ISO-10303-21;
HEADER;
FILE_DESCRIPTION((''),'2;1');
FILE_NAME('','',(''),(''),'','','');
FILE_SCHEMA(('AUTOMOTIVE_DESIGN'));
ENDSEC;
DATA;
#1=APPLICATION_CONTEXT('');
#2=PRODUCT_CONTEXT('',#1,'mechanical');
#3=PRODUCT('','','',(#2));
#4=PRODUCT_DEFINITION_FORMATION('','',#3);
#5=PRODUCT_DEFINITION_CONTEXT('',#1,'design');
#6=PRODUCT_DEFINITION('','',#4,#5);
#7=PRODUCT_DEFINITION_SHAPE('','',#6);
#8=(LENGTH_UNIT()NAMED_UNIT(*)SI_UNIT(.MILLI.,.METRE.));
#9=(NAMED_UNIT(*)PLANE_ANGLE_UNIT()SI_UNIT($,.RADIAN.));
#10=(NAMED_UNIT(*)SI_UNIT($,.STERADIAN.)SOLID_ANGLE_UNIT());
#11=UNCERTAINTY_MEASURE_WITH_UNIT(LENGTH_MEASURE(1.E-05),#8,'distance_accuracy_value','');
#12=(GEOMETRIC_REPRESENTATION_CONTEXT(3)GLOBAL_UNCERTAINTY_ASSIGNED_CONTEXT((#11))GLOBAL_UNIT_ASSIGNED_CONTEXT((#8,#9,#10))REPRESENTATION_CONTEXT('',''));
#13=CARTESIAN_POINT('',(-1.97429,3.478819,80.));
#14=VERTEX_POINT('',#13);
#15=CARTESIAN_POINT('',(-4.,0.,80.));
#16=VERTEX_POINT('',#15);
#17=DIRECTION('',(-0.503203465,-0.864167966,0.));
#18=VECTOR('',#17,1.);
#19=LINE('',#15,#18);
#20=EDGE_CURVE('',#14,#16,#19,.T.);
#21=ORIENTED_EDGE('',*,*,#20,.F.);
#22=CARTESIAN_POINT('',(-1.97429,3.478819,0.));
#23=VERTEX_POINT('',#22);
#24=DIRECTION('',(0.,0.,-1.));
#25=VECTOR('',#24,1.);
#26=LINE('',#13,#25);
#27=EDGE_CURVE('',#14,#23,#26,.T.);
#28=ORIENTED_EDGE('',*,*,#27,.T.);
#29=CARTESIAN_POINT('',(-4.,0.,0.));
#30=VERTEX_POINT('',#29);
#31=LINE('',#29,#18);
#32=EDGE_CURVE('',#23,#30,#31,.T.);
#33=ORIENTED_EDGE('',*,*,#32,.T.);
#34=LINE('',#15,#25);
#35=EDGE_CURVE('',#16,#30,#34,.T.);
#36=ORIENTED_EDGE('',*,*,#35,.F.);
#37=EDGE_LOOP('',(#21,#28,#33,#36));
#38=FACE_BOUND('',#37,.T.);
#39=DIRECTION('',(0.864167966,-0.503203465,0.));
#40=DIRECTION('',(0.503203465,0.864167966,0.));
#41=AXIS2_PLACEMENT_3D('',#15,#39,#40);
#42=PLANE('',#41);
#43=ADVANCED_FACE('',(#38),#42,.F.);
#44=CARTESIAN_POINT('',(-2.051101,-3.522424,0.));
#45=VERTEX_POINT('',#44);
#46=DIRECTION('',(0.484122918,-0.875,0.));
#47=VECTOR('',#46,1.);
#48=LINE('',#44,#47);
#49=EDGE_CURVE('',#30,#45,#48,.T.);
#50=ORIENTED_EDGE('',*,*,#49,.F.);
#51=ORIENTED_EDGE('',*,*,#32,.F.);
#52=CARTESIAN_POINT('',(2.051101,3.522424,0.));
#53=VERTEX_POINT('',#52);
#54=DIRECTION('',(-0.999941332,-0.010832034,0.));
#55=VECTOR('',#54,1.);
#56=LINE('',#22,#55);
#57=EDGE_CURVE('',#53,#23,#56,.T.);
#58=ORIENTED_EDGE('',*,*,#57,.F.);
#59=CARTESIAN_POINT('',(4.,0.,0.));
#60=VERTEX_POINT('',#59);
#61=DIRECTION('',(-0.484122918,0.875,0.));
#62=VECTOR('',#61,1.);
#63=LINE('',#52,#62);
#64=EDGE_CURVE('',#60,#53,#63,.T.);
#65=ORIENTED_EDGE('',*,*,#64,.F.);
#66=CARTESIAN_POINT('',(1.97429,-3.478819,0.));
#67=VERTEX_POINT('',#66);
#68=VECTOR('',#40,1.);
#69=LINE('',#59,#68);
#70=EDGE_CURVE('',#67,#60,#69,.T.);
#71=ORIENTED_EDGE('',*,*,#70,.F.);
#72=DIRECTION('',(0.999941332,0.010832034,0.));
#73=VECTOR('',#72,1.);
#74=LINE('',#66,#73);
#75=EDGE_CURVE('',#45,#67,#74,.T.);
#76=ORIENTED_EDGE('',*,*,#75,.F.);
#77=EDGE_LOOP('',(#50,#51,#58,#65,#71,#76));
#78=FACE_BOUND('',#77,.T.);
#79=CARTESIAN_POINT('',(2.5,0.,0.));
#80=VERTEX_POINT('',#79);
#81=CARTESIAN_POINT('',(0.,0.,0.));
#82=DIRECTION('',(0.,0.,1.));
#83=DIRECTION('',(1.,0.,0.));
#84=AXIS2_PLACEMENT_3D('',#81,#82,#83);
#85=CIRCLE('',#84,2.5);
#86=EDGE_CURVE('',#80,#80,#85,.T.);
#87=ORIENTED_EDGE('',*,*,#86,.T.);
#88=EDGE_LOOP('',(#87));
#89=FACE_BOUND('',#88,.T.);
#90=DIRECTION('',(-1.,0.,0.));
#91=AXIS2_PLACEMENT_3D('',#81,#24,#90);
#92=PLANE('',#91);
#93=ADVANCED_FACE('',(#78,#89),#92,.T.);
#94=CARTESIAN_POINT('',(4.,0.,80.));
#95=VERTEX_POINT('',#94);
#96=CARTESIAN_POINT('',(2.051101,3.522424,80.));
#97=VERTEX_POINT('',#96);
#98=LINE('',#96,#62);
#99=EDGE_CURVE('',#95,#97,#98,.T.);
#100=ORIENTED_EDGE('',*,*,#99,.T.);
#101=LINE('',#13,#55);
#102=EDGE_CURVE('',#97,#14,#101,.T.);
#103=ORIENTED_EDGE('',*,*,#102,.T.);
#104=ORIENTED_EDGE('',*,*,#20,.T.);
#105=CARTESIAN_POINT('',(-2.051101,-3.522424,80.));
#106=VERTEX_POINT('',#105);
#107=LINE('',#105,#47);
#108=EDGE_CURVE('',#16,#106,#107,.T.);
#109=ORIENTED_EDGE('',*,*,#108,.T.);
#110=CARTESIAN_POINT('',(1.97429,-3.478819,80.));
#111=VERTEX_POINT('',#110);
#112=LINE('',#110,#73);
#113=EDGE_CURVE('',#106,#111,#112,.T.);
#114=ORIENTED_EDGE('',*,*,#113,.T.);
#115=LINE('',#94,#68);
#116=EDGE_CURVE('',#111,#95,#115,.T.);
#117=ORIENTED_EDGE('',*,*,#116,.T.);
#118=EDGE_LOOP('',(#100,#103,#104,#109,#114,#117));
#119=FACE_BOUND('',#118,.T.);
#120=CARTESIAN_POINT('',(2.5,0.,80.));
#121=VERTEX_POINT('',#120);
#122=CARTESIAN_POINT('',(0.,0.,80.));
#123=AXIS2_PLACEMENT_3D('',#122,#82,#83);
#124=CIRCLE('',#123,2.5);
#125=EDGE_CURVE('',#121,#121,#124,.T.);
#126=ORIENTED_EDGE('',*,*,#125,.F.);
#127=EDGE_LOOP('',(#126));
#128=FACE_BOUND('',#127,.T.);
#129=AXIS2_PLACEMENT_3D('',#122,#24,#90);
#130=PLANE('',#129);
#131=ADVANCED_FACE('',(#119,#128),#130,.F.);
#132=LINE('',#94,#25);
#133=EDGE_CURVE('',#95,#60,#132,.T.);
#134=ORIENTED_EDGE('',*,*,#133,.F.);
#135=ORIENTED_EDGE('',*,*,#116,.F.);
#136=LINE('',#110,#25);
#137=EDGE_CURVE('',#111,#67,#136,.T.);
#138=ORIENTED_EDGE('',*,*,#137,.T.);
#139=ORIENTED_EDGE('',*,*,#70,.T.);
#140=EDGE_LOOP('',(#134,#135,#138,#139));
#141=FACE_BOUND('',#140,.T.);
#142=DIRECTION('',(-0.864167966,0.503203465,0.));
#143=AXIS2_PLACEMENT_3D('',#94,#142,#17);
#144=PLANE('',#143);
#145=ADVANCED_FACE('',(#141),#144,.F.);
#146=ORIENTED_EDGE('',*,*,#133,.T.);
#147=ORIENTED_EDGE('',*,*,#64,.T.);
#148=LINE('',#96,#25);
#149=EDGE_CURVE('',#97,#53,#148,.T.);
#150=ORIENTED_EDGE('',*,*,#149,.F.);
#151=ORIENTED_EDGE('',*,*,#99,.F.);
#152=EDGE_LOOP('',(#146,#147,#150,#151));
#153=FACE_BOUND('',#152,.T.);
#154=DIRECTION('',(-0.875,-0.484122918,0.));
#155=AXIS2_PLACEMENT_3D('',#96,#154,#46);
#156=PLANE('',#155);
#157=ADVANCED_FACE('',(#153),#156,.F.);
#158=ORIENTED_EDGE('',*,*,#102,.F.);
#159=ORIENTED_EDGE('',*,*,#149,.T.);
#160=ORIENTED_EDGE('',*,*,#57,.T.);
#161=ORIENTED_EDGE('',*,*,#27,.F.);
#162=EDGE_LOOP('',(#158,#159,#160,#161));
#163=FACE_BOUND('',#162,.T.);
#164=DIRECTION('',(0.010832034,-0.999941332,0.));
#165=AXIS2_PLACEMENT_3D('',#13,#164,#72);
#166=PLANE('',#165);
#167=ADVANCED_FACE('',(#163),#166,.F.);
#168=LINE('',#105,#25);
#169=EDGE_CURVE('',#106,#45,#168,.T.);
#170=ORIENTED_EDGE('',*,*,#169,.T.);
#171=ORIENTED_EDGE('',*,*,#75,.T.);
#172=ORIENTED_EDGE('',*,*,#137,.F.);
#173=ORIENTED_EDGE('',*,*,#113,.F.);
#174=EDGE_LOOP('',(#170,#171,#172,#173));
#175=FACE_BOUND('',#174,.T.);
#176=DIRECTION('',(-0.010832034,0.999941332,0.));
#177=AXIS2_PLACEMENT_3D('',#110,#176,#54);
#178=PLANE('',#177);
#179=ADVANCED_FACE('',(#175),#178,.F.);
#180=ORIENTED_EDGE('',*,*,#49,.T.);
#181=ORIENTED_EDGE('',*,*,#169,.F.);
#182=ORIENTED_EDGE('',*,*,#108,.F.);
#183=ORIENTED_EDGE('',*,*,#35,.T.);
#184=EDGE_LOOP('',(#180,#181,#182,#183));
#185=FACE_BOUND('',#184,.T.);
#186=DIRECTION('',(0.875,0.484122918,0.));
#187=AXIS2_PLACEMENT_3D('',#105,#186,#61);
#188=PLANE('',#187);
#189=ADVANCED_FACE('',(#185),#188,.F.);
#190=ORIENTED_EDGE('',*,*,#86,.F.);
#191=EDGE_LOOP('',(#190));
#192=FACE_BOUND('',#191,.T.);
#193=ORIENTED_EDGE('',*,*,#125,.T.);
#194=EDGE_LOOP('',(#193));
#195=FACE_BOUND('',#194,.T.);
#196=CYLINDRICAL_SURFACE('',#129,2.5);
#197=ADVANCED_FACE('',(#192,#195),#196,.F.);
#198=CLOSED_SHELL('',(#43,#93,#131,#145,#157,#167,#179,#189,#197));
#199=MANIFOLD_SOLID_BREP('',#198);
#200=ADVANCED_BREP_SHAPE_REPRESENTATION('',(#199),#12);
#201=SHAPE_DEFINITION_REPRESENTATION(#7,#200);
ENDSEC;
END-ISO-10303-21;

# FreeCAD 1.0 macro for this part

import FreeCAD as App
import Part
import Sketcher

V = App.Vector
Q = App.Units.Quantity

doc = App.newDocument("Part")
body = doc.addObject("PartDesign::Body", "Body")

sketch1 = body.newObject("Sketcher::SketchObject", "Sketch")
sketch1.AttachmentSupport = (doc.getObject("XY_Plane"), [""])
sketch1.MapMode = "FlatFace"
sketch1.addGeometry(Part.LineSegment(V(2.1, 3.5, 0), V(-2, 3.5, 0)), False)
sketch1.addGeometry(Part.LineSegment(V(-2, 3.5, 0), V(-4, 0, 0)), False)
sketch1.addGeometry(Part.LineSegment(V(-4, 0, 0), V(-2.1, -3.5, 0)), False)
sketch1.addGeometry(Part.LineSegment(V(-2.1, -3.5, 0), V(2, -3.5, 0)), False)
sketch1.addGeometry(Part.LineSegment(V(2, -3.5, 0), V(4, 0, 0)), False)
sketch1.addGeometry(Part.LineSegment(V(4, 0, 0), V(2.1, 3.5, 0)), False)
sketch1.addGeometry(Part.Circle(V(0, 0, 0), V(0, 0, 1), 2.5), False)
sketch1.addConstraint(Sketcher.Constraint("Coincident", 0, 2, 1, 1))
sketch1.addConstraint(Sketcher.Constraint("Coincident", 1, 2, 2, 1))
sketch1.addConstraint(Sketcher.Constraint("Coincident", 2, 2, 3, 1))
sketch1.addConstraint(Sketcher.Constraint("Coincident", 3, 2, 4, 1))
sketch1.addConstraint(Sketcher.Constraint("Coincident", 4, 2, 5, 1))
sketch1.addConstraint(Sketcher.Constraint("Coincident", 5, 2, 0, 1))
sketch1.addConstraint(Sketcher.Constraint("Coincident", 6, 3, -1, 1))
sketch1.addConstraint(Sketcher.Constraint("Symmetric", 0, 2, 3, 2, -1, 1))
sketch1.addConstraint(Sketcher.Constraint("Symmetric", 1, 2, 4, 2, -1, 1))
sketch1.addConstraint(Sketcher.Constraint("Symmetric", 2, 2, 5, 2, -1, 1))
sketch1.addConstraint(Sketcher.Constraint("PointOnObject", 1, 2, -1))
sketch1.addConstraint(Sketcher.Constraint("Equal", 0, 1))
sketch1.addConstraint(Sketcher.Constraint("Equal", 1, 2))
sketch1.addConstraint(Sketcher.Constraint("Diameter", 6, Q("5 mm")))
sketch1.addConstraint(Sketcher.Constraint("DistanceX", 1, 2, -1, 1, Q("4 mm")))
sketch1.addConstraint(Sketcher.Constraint("DistanceX", 2, 2, -1, 1, Q("2.051101 mm")))
sketch1.addConstraint(Sketcher.Constraint("DistanceX", 0, 2, -1, 1, Q("1.97429 mm")))
pad1 = body.newObject("PartDesign::Pad", "Pad")
pad1.Profile = sketch1
pad1.Length = 80

doc.recompute()
